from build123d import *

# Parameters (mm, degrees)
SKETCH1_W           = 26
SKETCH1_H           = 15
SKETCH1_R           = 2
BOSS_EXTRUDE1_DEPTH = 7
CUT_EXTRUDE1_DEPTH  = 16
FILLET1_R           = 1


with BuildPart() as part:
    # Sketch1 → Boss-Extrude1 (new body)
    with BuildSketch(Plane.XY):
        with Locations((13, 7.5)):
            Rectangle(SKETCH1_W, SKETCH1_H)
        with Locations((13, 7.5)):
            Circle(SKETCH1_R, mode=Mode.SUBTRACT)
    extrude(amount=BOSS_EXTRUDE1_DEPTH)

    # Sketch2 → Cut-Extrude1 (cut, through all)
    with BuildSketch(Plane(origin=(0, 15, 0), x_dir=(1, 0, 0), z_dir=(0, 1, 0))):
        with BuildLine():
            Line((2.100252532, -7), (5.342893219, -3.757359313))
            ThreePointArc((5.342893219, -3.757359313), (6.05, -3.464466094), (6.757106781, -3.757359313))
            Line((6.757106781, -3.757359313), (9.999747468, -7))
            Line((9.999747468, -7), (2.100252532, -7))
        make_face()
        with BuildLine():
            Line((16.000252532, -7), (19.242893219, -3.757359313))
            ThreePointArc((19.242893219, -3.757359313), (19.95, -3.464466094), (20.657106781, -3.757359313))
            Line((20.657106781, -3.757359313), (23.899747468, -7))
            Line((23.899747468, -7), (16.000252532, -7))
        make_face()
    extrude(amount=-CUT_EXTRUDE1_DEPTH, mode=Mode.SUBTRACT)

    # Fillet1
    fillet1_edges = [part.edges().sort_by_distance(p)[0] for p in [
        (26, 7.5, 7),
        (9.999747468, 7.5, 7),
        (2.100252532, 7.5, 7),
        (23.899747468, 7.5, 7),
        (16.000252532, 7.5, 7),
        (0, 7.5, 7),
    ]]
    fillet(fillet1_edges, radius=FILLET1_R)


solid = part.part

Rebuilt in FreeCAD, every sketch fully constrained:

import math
import FreeCAD as App
import Part
import Sketcher

V = App.Vector


def edges_at(feature, points):
    """Names of the edges that pass closest to the given points."""
    edges = feature.Shape.Edges
    near = lambda p: min(range(len(edges)), key=lambda i: edges[i].distToShape(Part.Vertex(*p))[0])
    return sorted({f"Edge{near(p) + 1}" for p in points})


def add_polygon(sketch, points):
    """Adds a closed chain of lines whose ends are joined by coincident constraints."""
    first, n = sketch.GeometryCount, len(points)
    for a, b in zip(points, points[1:] + points[:1]):
        sketch.addGeometry(Part.LineSegment(App.Vector(*a, 0), App.Vector(*b, 0)), False)
    for i in range(n):
        sketch.addConstraint(Sketcher.Constraint("Coincident", first + i, 2, first + (i + 1) % n, 1))

doc = App.newDocument("Part")
body = doc.addObject("PartDesign::Body", "Body")

# Sketch on XY plane
sketch1 = doc.addObject("Sketcher::SketchObject", "Sketch")
body.addObject(sketch1)
sketch1.AttachmentSupport = (doc.XY_Plane, [""])
sketch1.MapMode = "FlatFace"
add_polygon(sketch1, [(0, 15), (0, 0), (26, 0), (26, 15)])  # lines 0-3
sketch1.addGeometry(Part.Circle(V(13, 7.5, 0), V(0, 0, 1), 2), False)  # 4
sketch1.addConstraint([
    Sketcher.Constraint("Vertical", 0),
    Sketcher.Constraint("Horizontal", 1),
    Sketcher.Constraint("Vertical", 2),
    Sketcher.Constraint("Horizontal", 3),
    Sketcher.Constraint("Coincident", 0, 2, -1, 1),
    Sketcher.Constraint("Diameter", 4, 4.0),
    Sketcher.Constraint("DistanceX", 1, 1, 1, 2, 26.0),
    Sketcher.Constraint("DistanceY", 0, 2, 0, 1, 15.0),
    Sketcher.Constraint("DistanceX", -1, 1, 4, 3, 13.0),
    Sketcher.Constraint("DistanceY", -1, 1, 4, 3, 7.5),
])
pad1 = doc.addObject("PartDesign::Pad", "Pad")
body.addObject(pad1)
pad1.Profile = sketch1
pad1.Length = 7

# Sketch on XZ plane
sketch2 = doc.addObject("Sketcher::SketchObject", "Sketch001")
body.addObject(sketch2)
sketch2.AttachmentSupport = (doc.XZ_Plane, [""])
sketch2.MapMode = "FlatFace"
sketch2.AttachmentOffset = App.Placement(V(0, 0, -15), App.Rotation())
sketch2.addGeometry([
    Part.LineSegment(V(5.342893, 3.757359, 0), V(2.100253, 7, 0)),  # 0
    Part.LineSegment(V(2.100253, 7, 0), V(9.999747, 7, 0)),  # 1
    Part.LineSegment(V(9.999747, 7, 0), V(6.757107, 3.757359, 0)),  # 2
    Part.ArcOfCircle(Part.Circle(V(6.05, 4.464466, 0), V(0, 0, 1), 1), math.radians(-135), math.radians(-45)),  # 3
    Part.LineSegment(V(19.242893, 3.757359, 0), V(16.000253, 7, 0)),  # 4
    Part.LineSegment(V(16.000253, 7, 0), V(23.899747, 7, 0)),  # 5
    Part.LineSegment(V(23.899747, 7, 0), V(20.657107, 3.757359, 0)),  # 6
    Part.ArcOfCircle(Part.Circle(V(19.95, 4.464466, 0), V(0, 0, 1), 1), math.radians(-135), math.radians(-45)),  # 7
], False)
sketch2.addConstraint([
    Sketcher.Constraint("Coincident", 0, 2, 1, 1),
    Sketcher.Constraint("Coincident", 1, 2, 2, 1),
    Sketcher.Constraint("Tangent", 2, 2, 3, 2),
    Sketcher.Constraint("Tangent", 3, 1, 0, 1),
    Sketcher.Constraint("Coincident", 4, 2, 5, 1),
    Sketcher.Constraint("Coincident", 5, 2, 6, 1),
    Sketcher.Constraint("Tangent", 6, 2, 7, 2),
    Sketcher.Constraint("Tangent", 7, 1, 4, 1),
    Sketcher.Constraint("Horizontal", 1),
    Sketcher.Constraint("Horizontal", 5),
    Sketcher.Constraint("Equal", 3, 7),
    Sketcher.Constraint("Perpendicular", 0, 2),
    Sketcher.Constraint("Perpendicular", 2, 4),
    Sketcher.Constraint("Perpendicular", 4, 6),
    Sketcher.Constraint("Horizontal", 3, 3, 7, 3),
    Sketcher.Constraint("Horizontal", 2, 2, 3, 1),
    Sketcher.Constraint("Horizontal", 1, 2, 4, 2),
    Sketcher.Constraint("Radius", 3, 1.0),
    Sketcher.Constraint("DistanceY", -1, 1, 0, 2, 7.0),
    Sketcher.Constraint("DistanceX", 3, 3, 7, 3, 13.9),
    Sketcher.Constraint("DistanceX", -1, 1, 3, 3, 6.05),
    Sketcher.Constraint("DistanceX", 1, 1, 1, 2, 7.899495),
])
pocket1 = doc.addObject("PartDesign::Pocket", "Pocket")
body.addObject(pocket1)
pocket1.Profile = sketch2
pocket1.Type = "ThroughAll"
pocket1.Reversed = True
doc.recompute()

fillet = doc.addObject("PartDesign::Fillet", "Fillet")
body.addObject(fillet)
fillet.Base = (pocket1, edges_at(pocket1, [
    (26, 7.5, 7),
    (10, 7.5, 7),
    (2.1, 7.5, 7),
    (23.9, 7.5, 7),
    (16, 7.5, 7),
    (0, 7.5, 7),
]))
fillet.Radius = 1

doc.recompute()
